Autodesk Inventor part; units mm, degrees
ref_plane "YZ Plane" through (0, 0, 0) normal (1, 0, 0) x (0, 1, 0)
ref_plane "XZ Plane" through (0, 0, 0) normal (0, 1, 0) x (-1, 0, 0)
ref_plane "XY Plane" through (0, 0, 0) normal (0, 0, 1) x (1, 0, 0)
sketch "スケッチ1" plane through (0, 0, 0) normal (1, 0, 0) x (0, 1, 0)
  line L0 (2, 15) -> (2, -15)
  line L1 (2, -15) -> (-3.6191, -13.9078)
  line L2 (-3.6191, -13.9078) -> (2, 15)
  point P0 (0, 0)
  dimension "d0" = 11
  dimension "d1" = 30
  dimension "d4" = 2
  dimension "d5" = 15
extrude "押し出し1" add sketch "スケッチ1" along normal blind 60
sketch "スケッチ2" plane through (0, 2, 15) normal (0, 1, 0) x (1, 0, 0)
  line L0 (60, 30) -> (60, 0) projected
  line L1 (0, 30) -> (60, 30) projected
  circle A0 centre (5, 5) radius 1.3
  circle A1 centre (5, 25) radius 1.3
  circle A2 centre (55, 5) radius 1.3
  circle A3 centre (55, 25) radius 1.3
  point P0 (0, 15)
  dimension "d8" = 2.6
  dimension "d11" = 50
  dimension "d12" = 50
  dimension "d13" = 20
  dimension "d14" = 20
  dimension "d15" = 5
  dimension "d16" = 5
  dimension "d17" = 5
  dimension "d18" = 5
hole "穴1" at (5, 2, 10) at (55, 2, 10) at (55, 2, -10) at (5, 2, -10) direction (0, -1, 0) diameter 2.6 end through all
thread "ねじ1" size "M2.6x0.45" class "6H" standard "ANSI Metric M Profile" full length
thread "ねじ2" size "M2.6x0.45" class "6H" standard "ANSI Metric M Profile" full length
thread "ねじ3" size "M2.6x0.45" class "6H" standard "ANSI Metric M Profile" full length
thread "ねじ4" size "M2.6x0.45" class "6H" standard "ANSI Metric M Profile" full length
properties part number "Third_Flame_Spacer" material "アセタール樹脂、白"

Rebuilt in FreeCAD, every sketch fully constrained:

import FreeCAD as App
import Part
import Sketcher

V = App.Vector
Q = App.Units.Quantity


def add_polygon(sketch, points):
    """Adds a closed chain of lines whose ends are joined by coincident constraints."""
    first, n = sketch.GeometryCount, len(points)
    for a, b in zip(points, points[1:] + points[:1]):
        sketch.addGeometry(Part.LineSegment(App.Vector(*a, 0), App.Vector(*b, 0)), False)
    for i in range(n):
        sketch.addConstraint(Sketcher.Constraint("Coincident", first + i, 2, first + (i + 1) % n, 1))

doc = App.newDocument("Part")
body = doc.addObject("PartDesign::Body", "Body")

# Sketch on YZ plane
sketch1 = doc.addObject("Sketcher::SketchObject", "Sketch")
body.addObject(sketch1)
sketch1.AttachmentSupport = (doc.YZ_Plane, [""])
sketch1.MapMode = "FlatFace"
add_polygon(sketch1, [(2, -15), (2, 15), (-3.6191, -13.9078)])  # lines 0-2
sketch1.addConstraint(Sketcher.Constraint("Vertical", 0))
sketch1.addConstraint(Sketcher.Constraint("Perpendicular", 1, 2))
sketch1.addConstraint(Sketcher.Constraint("DistanceY", 0, 1, 0, 2, Q("30 mm")))
sketch1.addConstraint(Sketcher.Constraint("Angle", 2, Q("-10.9996 deg")))
sketch1.addConstraint(Sketcher.Constraint("DistanceX", -1, 1, 0, 2, Q("2 mm")))
sketch1.addConstraint(Sketcher.Constraint("DistanceY", -1, 1, 0, 2, Q("15 mm")))
pad1 = doc.addObject("PartDesign::Pad", "Pad")
body.addObject(pad1)
pad1.Profile = sketch1
pad1.Length = 60

# Sketch on XZ plane
sketch2 = doc.addObject("Sketcher::SketchObject", "Sketch001")
body.addObject(sketch2)
sketch2.AttachmentSupport = (doc.XZ_Plane, [""])
sketch2.MapMode = "FlatFace"
sketch2.AttachmentOffset = App.Placement(V(0, 0, -2), App.Rotation())
sketch2.addGeometry(Part.Circle(V(5, 10, 0), V(0, 0, 1), 1.3), False)
sketch2.addGeometry(Part.Circle(V(55, 10, 0), V(0, 0, 1), 1.3), False)
sketch2.addGeometry(Part.Circle(V(55, -10, 0), V(0, 0, 1), 1.3), False)
sketch2.addGeometry(Part.Circle(V(5, -10, 0), V(0, 0, 1), 1.3), False)
sketch2.addConstraint(Sketcher.Constraint("Equal", 0, 1))
sketch2.addConstraint(Sketcher.Constraint("Equal", 1, 2))
sketch2.addConstraint(Sketcher.Constraint("Equal", 2, 3))
sketch2.addConstraint(Sketcher.Constraint("Symmetric", 1, 3, 2, 3, -1))
sketch2.addConstraint(Sketcher.Constraint("Symmetric", 0, 3, 3, 3, -1))
sketch2.addConstraint(Sketcher.Constraint("Horizontal", 0, 3, 1, 3))
sketch2.addConstraint(Sketcher.Constraint("Diameter", 0, Q("2.6 mm")))
sketch2.addConstraint(Sketcher.Constraint("DistanceX", -1, 1, 0, 3, Q("5 mm")))
sketch2.addConstraint(Sketcher.Constraint("DistanceY", -1, 1, 0, 3, Q("10 mm")))
sketch2.addConstraint(Sketcher.Constraint("DistanceX", -1, 1, 1, 3, Q("55 mm")))
doc.recompute()
hole = doc.addObject("PartDesign::Hole", "Hole")
body.addObject(hole)
hole.Profile = sketch2
hole.ThreadType = "None"
hole.Diameter = 2.6
hole.DepthType = "ThroughAll"
hole.Reversed = True

doc.recompute()
